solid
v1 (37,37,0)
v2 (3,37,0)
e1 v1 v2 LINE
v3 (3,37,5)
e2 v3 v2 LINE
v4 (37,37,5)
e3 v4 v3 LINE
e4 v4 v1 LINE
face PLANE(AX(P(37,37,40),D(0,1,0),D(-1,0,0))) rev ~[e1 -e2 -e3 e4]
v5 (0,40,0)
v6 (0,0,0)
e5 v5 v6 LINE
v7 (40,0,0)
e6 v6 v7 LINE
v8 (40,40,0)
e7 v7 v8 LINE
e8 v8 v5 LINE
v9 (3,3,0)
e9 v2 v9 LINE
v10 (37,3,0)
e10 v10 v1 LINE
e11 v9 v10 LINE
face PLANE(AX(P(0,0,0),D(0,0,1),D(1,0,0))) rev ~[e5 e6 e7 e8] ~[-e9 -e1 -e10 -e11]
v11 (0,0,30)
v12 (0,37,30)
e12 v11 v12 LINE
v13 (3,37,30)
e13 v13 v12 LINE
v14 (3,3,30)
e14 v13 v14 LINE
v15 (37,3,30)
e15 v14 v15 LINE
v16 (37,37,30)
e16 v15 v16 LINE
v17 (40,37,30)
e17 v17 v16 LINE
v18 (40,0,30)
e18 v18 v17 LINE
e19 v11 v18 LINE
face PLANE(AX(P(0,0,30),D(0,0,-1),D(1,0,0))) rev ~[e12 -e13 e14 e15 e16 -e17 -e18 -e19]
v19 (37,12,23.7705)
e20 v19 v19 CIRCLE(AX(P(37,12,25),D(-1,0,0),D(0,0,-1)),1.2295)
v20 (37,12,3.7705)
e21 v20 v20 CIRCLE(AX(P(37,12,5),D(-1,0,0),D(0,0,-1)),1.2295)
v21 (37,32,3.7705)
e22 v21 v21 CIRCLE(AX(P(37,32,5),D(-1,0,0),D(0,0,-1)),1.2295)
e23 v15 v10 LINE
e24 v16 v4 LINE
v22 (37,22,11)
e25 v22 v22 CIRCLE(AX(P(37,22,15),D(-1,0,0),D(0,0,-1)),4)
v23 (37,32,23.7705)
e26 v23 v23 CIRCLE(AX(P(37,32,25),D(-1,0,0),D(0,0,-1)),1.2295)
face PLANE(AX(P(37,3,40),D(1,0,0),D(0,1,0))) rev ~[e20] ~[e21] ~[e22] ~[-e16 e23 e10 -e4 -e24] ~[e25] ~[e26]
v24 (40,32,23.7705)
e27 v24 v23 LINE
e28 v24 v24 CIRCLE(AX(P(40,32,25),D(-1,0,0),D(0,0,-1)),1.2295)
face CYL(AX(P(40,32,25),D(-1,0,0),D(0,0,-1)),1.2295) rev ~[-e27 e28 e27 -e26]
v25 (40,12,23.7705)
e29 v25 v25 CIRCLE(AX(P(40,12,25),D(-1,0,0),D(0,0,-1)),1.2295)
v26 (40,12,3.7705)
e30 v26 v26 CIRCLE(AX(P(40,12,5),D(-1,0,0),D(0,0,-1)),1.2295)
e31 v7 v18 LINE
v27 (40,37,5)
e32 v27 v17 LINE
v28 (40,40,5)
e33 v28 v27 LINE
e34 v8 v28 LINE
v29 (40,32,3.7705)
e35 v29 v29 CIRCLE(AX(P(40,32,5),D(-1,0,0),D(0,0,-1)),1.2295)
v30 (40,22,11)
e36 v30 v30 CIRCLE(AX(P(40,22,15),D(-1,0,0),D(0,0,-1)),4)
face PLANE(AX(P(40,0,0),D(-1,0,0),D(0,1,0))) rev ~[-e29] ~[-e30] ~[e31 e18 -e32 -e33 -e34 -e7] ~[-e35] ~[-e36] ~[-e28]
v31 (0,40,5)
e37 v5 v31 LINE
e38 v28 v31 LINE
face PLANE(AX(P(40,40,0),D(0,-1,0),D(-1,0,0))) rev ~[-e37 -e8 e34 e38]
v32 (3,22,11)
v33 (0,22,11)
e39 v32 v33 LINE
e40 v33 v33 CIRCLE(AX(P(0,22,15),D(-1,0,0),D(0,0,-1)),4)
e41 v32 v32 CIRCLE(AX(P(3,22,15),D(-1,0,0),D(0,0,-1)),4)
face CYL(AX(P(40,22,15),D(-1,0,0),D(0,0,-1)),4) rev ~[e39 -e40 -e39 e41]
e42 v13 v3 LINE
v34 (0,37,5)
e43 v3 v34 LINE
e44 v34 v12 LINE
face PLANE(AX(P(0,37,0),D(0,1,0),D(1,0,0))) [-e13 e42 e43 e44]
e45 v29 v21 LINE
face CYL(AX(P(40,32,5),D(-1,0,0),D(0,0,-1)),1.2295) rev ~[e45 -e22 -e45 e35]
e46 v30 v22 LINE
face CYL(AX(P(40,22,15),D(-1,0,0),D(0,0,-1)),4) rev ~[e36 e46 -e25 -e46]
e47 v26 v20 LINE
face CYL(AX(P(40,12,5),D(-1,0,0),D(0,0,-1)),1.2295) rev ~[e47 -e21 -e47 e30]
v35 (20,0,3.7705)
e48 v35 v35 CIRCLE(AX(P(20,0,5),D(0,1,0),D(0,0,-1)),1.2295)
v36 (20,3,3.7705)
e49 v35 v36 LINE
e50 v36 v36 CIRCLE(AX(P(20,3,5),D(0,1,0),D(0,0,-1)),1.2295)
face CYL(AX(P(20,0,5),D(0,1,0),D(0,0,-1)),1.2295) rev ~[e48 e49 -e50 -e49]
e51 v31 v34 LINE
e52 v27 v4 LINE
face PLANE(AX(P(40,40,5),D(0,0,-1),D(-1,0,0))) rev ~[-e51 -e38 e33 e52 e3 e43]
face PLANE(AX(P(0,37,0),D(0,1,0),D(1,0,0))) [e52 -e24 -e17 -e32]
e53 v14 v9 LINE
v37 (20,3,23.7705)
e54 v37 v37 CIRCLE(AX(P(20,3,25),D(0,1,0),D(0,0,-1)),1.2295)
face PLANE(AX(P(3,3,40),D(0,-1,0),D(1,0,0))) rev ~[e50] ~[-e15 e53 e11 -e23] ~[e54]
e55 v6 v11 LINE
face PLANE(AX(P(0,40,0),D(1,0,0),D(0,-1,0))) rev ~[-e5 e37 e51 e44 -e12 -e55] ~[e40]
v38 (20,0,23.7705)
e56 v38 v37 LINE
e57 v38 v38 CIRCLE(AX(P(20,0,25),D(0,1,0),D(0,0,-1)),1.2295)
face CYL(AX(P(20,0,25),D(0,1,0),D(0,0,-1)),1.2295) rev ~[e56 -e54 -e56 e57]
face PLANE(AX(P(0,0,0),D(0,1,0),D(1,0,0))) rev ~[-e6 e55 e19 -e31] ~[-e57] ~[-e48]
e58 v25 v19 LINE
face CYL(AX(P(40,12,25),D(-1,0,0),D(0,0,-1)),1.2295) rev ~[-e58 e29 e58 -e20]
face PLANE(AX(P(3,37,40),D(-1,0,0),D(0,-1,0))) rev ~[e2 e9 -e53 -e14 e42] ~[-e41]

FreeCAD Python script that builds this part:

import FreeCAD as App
import Part
import Sketcher


def add_polygon(sketch, points):
    """Adds a closed chain of lines whose ends are joined by coincident constraints."""
    first, n = sketch.GeometryCount, len(points)
    for a, b in zip(points, points[1:] + points[:1]):
        sketch.addGeometry(Part.LineSegment(App.Vector(*a, 0), App.Vector(*b, 0)), False)
    for i in range(n):
        sketch.addConstraint(Sketcher.Constraint("Coincident", first + i, 2, first + (i + 1) % n, 1))

doc = App.newDocument("Part")
params = doc.addObject("Spreadsheet::Sheet", "Params")
for row, (alias, value) in enumerate([
    ("sketch1_width", "40 mm"),
    ("pad1_length", "40 mm"),
    ("sketch2_width", "34 mm"),
    ("sketch3_width", "40 mm"),
    ("sketch3_height", "35 mm"),
    ("pocket2_length", "3 mm"),
    ("sketch4_height", "10 mm"),
    ("sketch4_width", "40 mm"),
    ("hole_diameter", "2.459 mm"),
    ("hole_depth", "3 mm"),
    ("hole2_diameter", "2.459 mm"),
    ("hole2_depth", "3 mm"),
    ("sketch7_diameter", "8 mm"),
    ("hole3_diameter", "8 mm"),
], start=1):
    params.set(f"A{row}", alias)
    params.set(f"B{row}", "=" + value)
    params.setAlias(f"B{row}", alias)

body = doc.addObject("PartDesign::Body", "Body")

sketch1 = body.newObject("Sketcher::SketchObject", "Sketch")
sketch1.AttachmentSupport = (doc.getObject("XY_Plane"), [""])
sketch1.MapMode = "FlatFace"
add_polygon(sketch1, [(0, 40), (0, 0), (40, 0), (40, 40)])
sketch1.addConstraint([
    Sketcher.Constraint("Vertical", 0),
    Sketcher.Constraint("Horizontal", 1),
    Sketcher.Constraint("Vertical", 2),
    Sketcher.Constraint("Horizontal", 3),
    Sketcher.Constraint("Coincident", 0, 2, -1, 1),
    Sketcher.Constraint("Equal", 3, 0),
    Sketcher.Constraint("DistanceX", 1, 1, 1, 2, 40.0),
])
sketch1.setExpression("Constraints[10]", "Params.sketch1_width")
pad1 = body.newObject("PartDesign::Pad", "Pad")
pad1.Profile = sketch1
pad1.setExpression("Length", "Params.pad1_length")

sketch2 = body.newObject("Sketcher::SketchObject", "Sketch001")
sketch2.AttachmentSupport = (doc.getObject("XY_Plane"), [""])
sketch2.MapMode = "FlatFace"
sketch2.AttachmentOffset = App.Placement(App.Vector(0, 0, 40), App.Rotation())
add_polygon(sketch2, [(3, 37), (3, 3), (37, 3), (37, 37)])
sketch2.addConstraint([
    Sketcher.Constraint("Vertical", 0),
    Sketcher.Constraint("Horizontal", 1),
    Sketcher.Constraint("Vertical", 2),
    Sketcher.Constraint("Horizontal", 3),
    Sketcher.Constraint("Equal", 3, 0),
    Sketcher.Constraint("DistanceX", -1, 1, 0, 2, 3.0),
    Sketcher.Constraint("DistanceY", -1, 1, 0, 2, 3.0),
    Sketcher.Constraint("DistanceX", 1, 1, 1, 2, 34.0),
])
sketch2.setExpression("Constraints[11]", "Params.sketch2_width")
pocket1 = body.newObject("PartDesign::Pocket", "Pocket")
pocket1.Profile = sketch2
pocket1.Type = "ThroughAll"

sketch3 = body.newObject("Sketcher::SketchObject", "Sketch002")
sketch3.AttachmentSupport = (doc.getObject("XZ_Plane"), [""])
sketch3.MapMode = "FlatFace"
sketch3.AttachmentOffset = App.Placement(App.Vector(0, 0, -40), App.Rotation())
add_polygon(sketch3, [(40, 5), (0, 5), (0, 40), (40, 40)])
sketch3.addConstraint([
    Sketcher.Constraint("Horizontal", 0),
    Sketcher.Constraint("Vertical", 1),
    Sketcher.Constraint("Horizontal", 2),
    Sketcher.Constraint("Vertical", 3),
    Sketcher.Constraint("PointOnObject", 0, 2, -2),
    Sketcher.Constraint("DistanceY", -1, 1, 0, 2, 5.0),
    Sketcher.Constraint("DistanceX", 0, 2, 0, 1, 40.0),
    Sketcher.Constraint("DistanceY", 1, 1, 1, 2, 35.0),
])
sketch3.setExpression("Constraints[10]", "Params.sketch3_width")
sketch3.setExpression("Constraints[11]", "Params.sketch3_height")
pocket2 = body.newObject("PartDesign::Pocket", "Pocket001")
pocket2.Profile = sketch3
pocket2.setExpression("Length", "Params.pocket2_length")
pocket2.Reversed = True

sketch4 = body.newObject("Sketcher::SketchObject", "Sketch003")
sketch4.AttachmentSupport = (doc.getObject("XZ_Plane"), [""])
sketch4.MapMode = "FlatFace"
add_polygon(sketch4, [(40, 40), (0, 40), (0, 30), (40, 30)])
sketch4.addConstraint([
    Sketcher.Constraint("Horizontal", 0),
    Sketcher.Constraint("Vertical", 1),
    Sketcher.Constraint("Horizontal", 2),
    Sketcher.Constraint("Vertical", 3),
    Sketcher.Constraint("PointOnObject", 0, 2, -2),
    Sketcher.Constraint("DistanceY", 1, 2, 1, 1, 10.0),
    Sketcher.Constraint("DistanceX", 0, 2, 0, 1, 40.0),
    Sketcher.Constraint("DistanceY", -1, 1, 0, 2, 40.0),
])
sketch4.setExpression("Constraints[9]", "Params.sketch4_height")
sketch4.setExpression("Constraints[10]", "Params.sketch4_width")
pocket3 = body.newObject("PartDesign::Pocket", "Pocket002")
pocket3.Profile = sketch4
pocket3.Type = "ThroughAll"

sketch5 = body.newObject("Sketcher::SketchObject", "Sketch004")
sketch5.AttachmentSupport = (doc.getObject("XZ_Plane"), [""])
sketch5.MapMode = "FlatFace"
sketch5.addGeometry([
    Part.Circle(App.Vector(20, 5, 0), App.Vector(0, 0, 1), 1.2295),
    Part.Circle(App.Vector(20, 25, 0), App.Vector(0, 0, 1), 1.2295),
], False)
sketch5.addConstraint([
    Sketcher.Constraint("Equal", 0, 1),
    Sketcher.Constraint("Vertical", 0, 3, 1, 3),
    Sketcher.Constraint("Diameter", 0, 2.459),
    Sketcher.Constraint("DistanceX", -1, 1, 0, 3, 20.0),
    Sketcher.Constraint("DistanceY", -1, 1, 0, 3, 5.0),
    Sketcher.Constraint("DistanceY", -1, 1, 1, 3, 25.0),
])
doc.recompute()
hole = body.newObject("PartDesign::Hole", "Hole")
hole.Profile = sketch5
hole.ThreadType = "None"
hole.setExpression("Diameter", "Params.hole_diameter")
hole.DepthType = "Dimension"
hole.setExpression("Depth", "Params.hole_depth")
hole.DrillPoint = "Flat"

sketch6 = body.newObject("Sketcher::SketchObject", "Sketch005")
sketch6.AttachmentSupport = (doc.getObject("YZ_Plane"), [""])
sketch6.MapMode = "FlatFace"
sketch6.AttachmentOffset = App.Placement(App.Vector(0, 0, 40), App.Rotation())
sketch6.addGeometry([
    Part.Circle(App.Vector(32, 25, 0), App.Vector(0, 0, 1), 1.2295),
    Part.Circle(App.Vector(32, 5, 0), App.Vector(0, 0, 1), 1.2295),
    Part.Circle(App.Vector(12, 25, 0), App.Vector(0, 0, 1), 1.2295),
    Part.Circle(App.Vector(12, 5, 0), App.Vector(0, 0, 1), 1.2295),
], False)
sketch6.addConstraint([
    Sketcher.Constraint("Equal", 0, 1),
    Sketcher.Constraint("Equal", 1, 2),
    Sketcher.Constraint("Equal", 2, 3),
    Sketcher.Constraint("Horizontal", 0, 3, 2, 3),
    Sketcher.Constraint("Horizontal", 1, 3, 3, 3),
    Sketcher.Constraint("Vertical", 0, 3, 1, 3),
    Sketcher.Constraint("Vertical", 2, 3, 3, 3),
    Sketcher.Constraint("Diameter", 0, 2.459),
    Sketcher.Constraint("DistanceX", -1, 1, 0, 3, 32.0),
    Sketcher.Constraint("DistanceY", -1, 1, 0, 3, 25.0),
    Sketcher.Constraint("DistanceY", -1, 1, 1, 3, 5.0),
    Sketcher.Constraint("DistanceX", -1, 1, 2, 3, 12.0),
])
doc.recompute()
hole2 = body.newObject("PartDesign::Hole", "Hole001")
hole2.Profile = sketch6
hole2.ThreadType = "None"
hole2.setExpression("Diameter", "Params.hole2_diameter")
hole2.DepthType = "Dimension"
hole2.setExpression("Depth", "Params.hole2_depth")
hole2.DrillPoint = "Flat"

sketch7 = body.newObject("Sketcher::SketchObject", "Sketch006")
sketch7.AttachmentSupport = (doc.getObject("YZ_Plane"), [""])
sketch7.MapMode = "FlatFace"
sketch7.AttachmentOffset = App.Placement(App.Vector(0, 0, 40), App.Rotation())
sketch7.addGeometry(Part.Circle(App.Vector(22, 15, 0), App.Vector(0, 0, 1), 4), False)
sketch7.addConstraint([
    Sketcher.Constraint("Diameter", 0, 8.0),
    Sketcher.Constraint("DistanceX", -1, 1, 0, 3, 22.0),
    Sketcher.Constraint("DistanceY", -1, 1, 0, 3, 15.0),
])
sketch7.setExpression("Constraints[0]", "Params.sketch7_diameter")
doc.recompute()
hole3 = body.newObject("PartDesign::Hole", "Hole002")
hole3.Profile = sketch7
hole3.ThreadType = "None"
hole3.setExpression("Diameter", "Params.hole3_diameter")
hole3.DepthType = "ThroughAll"

doc.recompute()
